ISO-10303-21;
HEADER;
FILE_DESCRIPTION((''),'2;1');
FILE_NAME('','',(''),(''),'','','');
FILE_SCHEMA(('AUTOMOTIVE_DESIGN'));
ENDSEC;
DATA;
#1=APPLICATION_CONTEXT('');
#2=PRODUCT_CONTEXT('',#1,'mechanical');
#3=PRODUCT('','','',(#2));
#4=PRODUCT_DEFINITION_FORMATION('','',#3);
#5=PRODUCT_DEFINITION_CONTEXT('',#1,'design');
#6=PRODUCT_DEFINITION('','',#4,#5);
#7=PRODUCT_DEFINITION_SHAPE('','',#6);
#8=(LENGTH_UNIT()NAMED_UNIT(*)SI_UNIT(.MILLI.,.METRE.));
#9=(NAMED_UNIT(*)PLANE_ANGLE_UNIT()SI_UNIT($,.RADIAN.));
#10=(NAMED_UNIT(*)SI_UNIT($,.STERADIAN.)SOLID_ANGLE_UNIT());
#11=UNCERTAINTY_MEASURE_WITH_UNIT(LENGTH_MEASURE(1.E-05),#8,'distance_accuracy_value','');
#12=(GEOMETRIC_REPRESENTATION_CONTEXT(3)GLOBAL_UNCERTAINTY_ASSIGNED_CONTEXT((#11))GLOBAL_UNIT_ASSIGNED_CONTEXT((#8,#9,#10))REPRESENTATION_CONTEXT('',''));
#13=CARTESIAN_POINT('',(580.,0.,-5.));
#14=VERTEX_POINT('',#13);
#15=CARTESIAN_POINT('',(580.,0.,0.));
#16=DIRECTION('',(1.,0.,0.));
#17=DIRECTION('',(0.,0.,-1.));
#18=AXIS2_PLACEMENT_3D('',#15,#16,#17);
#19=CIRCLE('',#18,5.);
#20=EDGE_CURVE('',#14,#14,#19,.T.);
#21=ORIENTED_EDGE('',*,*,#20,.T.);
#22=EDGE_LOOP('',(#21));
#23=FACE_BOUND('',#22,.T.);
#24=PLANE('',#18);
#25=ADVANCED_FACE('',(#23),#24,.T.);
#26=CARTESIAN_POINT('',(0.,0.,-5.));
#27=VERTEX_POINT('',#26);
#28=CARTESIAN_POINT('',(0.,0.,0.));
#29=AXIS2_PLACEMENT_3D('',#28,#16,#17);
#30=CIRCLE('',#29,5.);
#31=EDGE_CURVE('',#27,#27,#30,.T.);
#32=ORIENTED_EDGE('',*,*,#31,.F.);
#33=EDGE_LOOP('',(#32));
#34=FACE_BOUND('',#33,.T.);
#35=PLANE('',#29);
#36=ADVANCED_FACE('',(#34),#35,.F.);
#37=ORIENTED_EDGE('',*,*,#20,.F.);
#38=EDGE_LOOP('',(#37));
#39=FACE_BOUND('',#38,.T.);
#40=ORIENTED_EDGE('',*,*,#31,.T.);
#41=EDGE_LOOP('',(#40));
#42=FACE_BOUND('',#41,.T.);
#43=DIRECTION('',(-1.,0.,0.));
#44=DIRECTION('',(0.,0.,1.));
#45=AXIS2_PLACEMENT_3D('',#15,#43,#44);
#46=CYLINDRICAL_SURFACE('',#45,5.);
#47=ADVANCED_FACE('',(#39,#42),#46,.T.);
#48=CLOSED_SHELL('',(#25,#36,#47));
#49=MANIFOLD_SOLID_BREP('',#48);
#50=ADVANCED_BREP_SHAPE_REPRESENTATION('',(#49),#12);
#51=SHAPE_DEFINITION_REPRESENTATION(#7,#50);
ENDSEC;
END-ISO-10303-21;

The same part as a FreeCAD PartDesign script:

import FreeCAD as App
import Part
import Sketcher
Q = App.Units.Quantity

doc = App.newDocument("Part")
body = doc.addObject("PartDesign::Body", "Body")

sketch1 = body.newObject("Sketcher::SketchObject", "Sketch")
sketch1.AttachmentSupport = (doc.getObject("YZ_Plane"), [""])
sketch1.MapMode = "FlatFace"
sketch1.addGeometry(Part.Circle(App.Vector(0, 0, 0), App.Vector(0, 0, 1), 5), False)
sketch1.addConstraint([
    Sketcher.Constraint("Coincident", 0, 3, -1, 1),
    Sketcher.Constraint("Diameter", 0, Q("10 mm")),
])
pad1 = body.newObject("PartDesign::Pad", "Pad")
pad1.Profile = sketch1
pad1.Length = 580

doc.recompute()
